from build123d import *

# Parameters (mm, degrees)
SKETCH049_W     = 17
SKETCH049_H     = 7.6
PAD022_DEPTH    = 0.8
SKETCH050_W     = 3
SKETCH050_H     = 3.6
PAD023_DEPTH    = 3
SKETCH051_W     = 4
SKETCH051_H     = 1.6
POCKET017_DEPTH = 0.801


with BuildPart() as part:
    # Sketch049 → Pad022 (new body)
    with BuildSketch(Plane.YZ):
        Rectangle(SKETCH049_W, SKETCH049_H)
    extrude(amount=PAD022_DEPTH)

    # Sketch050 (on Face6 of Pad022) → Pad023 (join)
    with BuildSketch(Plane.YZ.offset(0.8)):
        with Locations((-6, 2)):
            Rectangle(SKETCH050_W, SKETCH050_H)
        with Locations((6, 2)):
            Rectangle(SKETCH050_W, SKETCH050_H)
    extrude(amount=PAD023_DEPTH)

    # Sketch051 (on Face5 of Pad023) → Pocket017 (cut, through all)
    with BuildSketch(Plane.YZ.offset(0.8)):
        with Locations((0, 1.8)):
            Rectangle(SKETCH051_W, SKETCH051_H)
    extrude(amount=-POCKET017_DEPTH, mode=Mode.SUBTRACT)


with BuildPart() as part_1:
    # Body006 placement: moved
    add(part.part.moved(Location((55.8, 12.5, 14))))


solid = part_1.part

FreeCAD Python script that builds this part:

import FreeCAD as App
import Part
import Sketcher
Q = App.Units.Quantity


def add_polygon(sketch, points):
    """Adds a closed chain of lines whose ends are joined by coincident constraints."""
    first, n = sketch.GeometryCount, len(points)
    for a, b in zip(points, points[1:] + points[:1]):
        sketch.addGeometry(Part.LineSegment(App.Vector(*a, 0), App.Vector(*b, 0)), False)
    for i in range(n):
        sketch.addConstraint(Sketcher.Constraint("Coincident", first + i, 2, first + (i + 1) % n, 1))

doc = App.newDocument("Part")
body = doc.addObject("PartDesign::Body", "Body")

# Sketch on YZ plane
sketch1 = doc.addObject("Sketcher::SketchObject", "Sketch")
body.addObject(sketch1)
sketch1.AttachmentSupport = (doc.YZ_Plane, [""])
sketch1.MapMode = "FlatFace"
add_polygon(sketch1, [(-8, 4), (-8, -4), (8, -4), (8, 4)])  # lines 0-3
sketch1.addConstraint([
    Sketcher.Constraint("Vertical", 0),
    Sketcher.Constraint("Horizontal", 1),
    Sketcher.Constraint("Vertical", 2),
    Sketcher.Constraint("Horizontal", 3),
    Sketcher.Constraint("Symmetric", 0, 2, 2, 2, -1, 1),
    Sketcher.Constraint("DistanceX", 1, 1, 1, 2, Q("17 mm")),
    Sketcher.Constraint("DistanceY", 0, 2, 0, 1, Q("7.6 mm")),
])
pad1 = doc.addObject("PartDesign::Pad", "Pad")
body.addObject(pad1)
pad1.Profile = sketch1
pad1.Length = 0.8

# Sketch on YZ plane
sketch2 = doc.addObject("Sketcher::SketchObject", "Sketch001")
body.addObject(sketch2)
sketch2.AttachmentSupport = (doc.YZ_Plane, [""])
sketch2.MapMode = "FlatFace"
sketch2.AttachmentOffset = App.Placement(App.Vector(0, 0, 0.8), App.Rotation())
add_polygon(sketch2, [(-7.5, 3.8), (-7.5, 0.2), (-4.5, 0.2), (-4.5, 3.8)])  # lines 0-3
add_polygon(sketch2, [(4.5, 3.8), (4.5, 0.2), (7.5, 0.2), (7.5, 3.8)])  # lines 4-7
sketch2.addConstraint([
    Sketcher.Constraint("Vertical", 0),
    Sketcher.Constraint("Horizontal", 1),
    Sketcher.Constraint("Vertical", 2),
    Sketcher.Constraint("Horizontal", 3),
    Sketcher.Constraint("Vertical", 4),
    Sketcher.Constraint("Horizontal", 5),
    Sketcher.Constraint("Vertical", 6),
    Sketcher.Constraint("Horizontal", 7),
    Sketcher.Constraint("Symmetric", 1, 2, 4, 2, -2),
    Sketcher.Constraint("Symmetric", 3, 2, 6, 2, -2),
    Sketcher.Constraint("DistanceX", 1, 1, 1, 2, Q("3 mm")),
    Sketcher.Constraint("DistanceY", 0, 2, 0, 1, Q("3.6 mm")),
    Sketcher.Constraint("DistanceX", 1, 2, 4, 2, Q("9 mm")),
    Sketcher.Constraint("DistanceY", -1, 1, 0, 2, Q("0.2 mm")),
])
pad2 = doc.addObject("PartDesign::Pad", "Pad001")
body.addObject(pad2)
pad2.Profile = sketch2
pad2.Length = 3

# Sketch on YZ plane
sketch3 = doc.addObject("Sketcher::SketchObject", "Sketch002")
body.addObject(sketch3)
sketch3.AttachmentSupport = (doc.YZ_Plane, [""])
sketch3.MapMode = "FlatFace"
sketch3.AttachmentOffset = App.Placement(App.Vector(0, 0, 0.8), App.Rotation())
add_polygon(sketch3, [(-2, 2.6), (-2, 1), (2, 1), (2, 2.6)])  # lines 0-3
sketch3.addConstraint([
    Sketcher.Constraint("Vertical", 0),
    Sketcher.Constraint("Horizontal", 1),
    Sketcher.Constraint("Vertical", 2),
    Sketcher.Constraint("Horizontal", 3),
    Sketcher.Constraint("DistanceX", 1, 1, 1, 2, Q("4 mm")),
    Sketcher.Constraint("DistanceY", 0, 2, 0, 1, Q("1.6 mm")),
    Sketcher.Constraint("DistanceX", 0, 2, -1, 1, Q("2 mm")),
    Sketcher.Constraint("DistanceY", -1, 1, 0, 2, Q("1 mm")),
])
pocket1 = doc.addObject("PartDesign::Pocket", "Pocket")
body.addObject(pocket1)
pocket1.Profile = sketch3
pocket1.Type = "ThroughAll"
body2 = doc.addObject("PartDesign::Body", "Body001")
doc.recompute()

body.Placement = App.Placement(App.Vector(55.8, 12.5, 14), App.Rotation(App.Vector(0, 0, 1), 0))
boolean = doc.addObject("PartDesign::Boolean", "Boolean")
body2.addObject(boolean)
boolean.Type = "Fuse"
boolean.addObjects([body])

doc.recompute()
